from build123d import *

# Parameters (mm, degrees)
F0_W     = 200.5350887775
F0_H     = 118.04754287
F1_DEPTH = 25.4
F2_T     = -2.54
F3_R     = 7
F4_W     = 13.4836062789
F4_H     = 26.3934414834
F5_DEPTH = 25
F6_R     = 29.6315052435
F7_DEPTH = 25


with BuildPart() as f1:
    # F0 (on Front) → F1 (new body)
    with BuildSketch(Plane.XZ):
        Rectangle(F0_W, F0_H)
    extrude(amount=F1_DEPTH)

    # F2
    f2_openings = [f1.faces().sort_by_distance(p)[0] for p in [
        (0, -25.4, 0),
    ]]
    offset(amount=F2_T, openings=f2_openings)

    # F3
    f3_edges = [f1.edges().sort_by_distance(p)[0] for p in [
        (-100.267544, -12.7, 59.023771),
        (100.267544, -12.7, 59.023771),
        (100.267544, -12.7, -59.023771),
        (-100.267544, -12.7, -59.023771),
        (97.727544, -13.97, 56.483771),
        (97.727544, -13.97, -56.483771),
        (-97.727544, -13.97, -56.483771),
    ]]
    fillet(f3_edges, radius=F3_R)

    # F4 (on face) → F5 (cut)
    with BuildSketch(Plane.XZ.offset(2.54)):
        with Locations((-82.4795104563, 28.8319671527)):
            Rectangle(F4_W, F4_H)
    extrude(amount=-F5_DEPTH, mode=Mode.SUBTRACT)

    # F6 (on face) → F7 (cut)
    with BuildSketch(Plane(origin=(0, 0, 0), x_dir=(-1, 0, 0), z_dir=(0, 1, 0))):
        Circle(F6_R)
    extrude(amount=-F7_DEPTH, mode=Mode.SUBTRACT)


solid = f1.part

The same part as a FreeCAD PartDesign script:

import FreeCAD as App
import Part
import Sketcher
from FreeCAD import Vector


def edges_at(feature, points):
    """Names of the edges that pass closest to the given points."""
    edges = feature.Shape.Edges
    near = lambda p: min(range(len(edges)), key=lambda i: edges[i].distToShape(Part.Vertex(*p))[0])
    return sorted({f"Edge{near(p) + 1}" for p in points})


def faces_at(feature, points):
    """Names of the faces that lie closest to the given points."""
    faces = feature.Shape.Faces
    near = lambda p: min(range(len(faces)), key=lambda i: faces[i].distToShape(Part.Vertex(*p))[0])
    return sorted({f"Face{near(p) + 1}" for p in points})

doc = App.newDocument("Part")
body = doc.addObject("PartDesign::Body", "Body")

# Sketch on XZ plane
sketch1 = body.newObject("Sketcher::SketchObject", "Sketch")
sketch1.AttachmentSupport = (doc.getObject("XZ_Plane"), [""])
sketch1.MapMode = "FlatFace"
sketch1.addGeometry([
    Part.LineSegment(Vector(-100, 59, 0), Vector(-100, -59, 0)),
    Part.LineSegment(Vector(-100, -59, 0), Vector(100, -59, 0)),
    Part.LineSegment(Vector(100, -59, 0), Vector(100, 59, 0)),
    Part.LineSegment(Vector(100, 59, 0), Vector(-100, 59, 0)),
], False)
sketch1.addConstraint([
    Sketcher.Constraint("Coincident", 0, 2, 1, 1),
    Sketcher.Constraint("Coincident", 1, 2, 2, 1),
    Sketcher.Constraint("Coincident", 2, 2, 3, 1),
    Sketcher.Constraint("Coincident", 3, 2, 0, 1),
    Sketcher.Constraint("Vertical", 0),
    Sketcher.Constraint("Horizontal", 1),
    Sketcher.Constraint("Vertical", 2),
    Sketcher.Constraint("Horizontal", 3),
    Sketcher.Constraint("Symmetric", 0, 2, 2, 2, -1, 1),
    Sketcher.Constraint("DistanceX", 1, 1, 1, 2, 200.535089),
    Sketcher.Constraint("DistanceY", 0, 2, 0, 1, 118.047543),
])
pad1 = body.newObject("PartDesign::Pad", "Pad")
pad1.Profile = sketch1
pad1.Length = 25.4
doc.recompute()

thickness = body.newObject("PartDesign::Thickness", "Thickness")
thickness.Base = (pad1, faces_at(pad1, [(0, -25.4, 0)]))
thickness.Value = 2.54
thickness.Reversed = True
thickness.Join = "Arc"
doc.recompute()

fillet = body.newObject("PartDesign::Fillet", "Fillet")
fillet.Base = (thickness, edges_at(thickness, [
    (-100.268, -12.7, 59.024),
    (100.268, -12.7, 59.024),
    (100.268, -12.7, -59.024),
    (-100.268, -12.7, -59.024),
    (97.728, -13.97, 56.484),
    (97.728, -13.97, -56.484),
    (-97.728, -13.97, -56.484),
]))
fillet.Radius = 7

# Sketch on XZ plane
sketch2 = body.newObject("Sketcher::SketchObject", "Sketch001")
sketch2.AttachmentSupport = (doc.getObject("XZ_Plane"), [""])
sketch2.MapMode = "FlatFace"
sketch2.AttachmentOffset = App.Placement(Vector(0, 0, 2.54), App.Rotation())
sketch2.addGeometry([
    Part.LineSegment(Vector(-89, 42, 0), Vector(-89, 16, 0)),
    Part.LineSegment(Vector(-89, 16, 0), Vector(-76, 16, 0)),
    Part.LineSegment(Vector(-76, 16, 0), Vector(-76, 42, 0)),
    Part.LineSegment(Vector(-76, 42, 0), Vector(-89, 42, 0)),
], False)
sketch2.addConstraint([
    Sketcher.Constraint("Coincident", 0, 2, 1, 1),
    Sketcher.Constraint("Coincident", 1, 2, 2, 1),
    Sketcher.Constraint("Coincident", 2, 2, 3, 1),
    Sketcher.Constraint("Coincident", 3, 2, 0, 1),
    Sketcher.Constraint("Vertical", 0),
    Sketcher.Constraint("Horizontal", 1),
    Sketcher.Constraint("Vertical", 2),
    Sketcher.Constraint("Horizontal", 3),
    Sketcher.Constraint("DistanceY", 0, 2, 0, 1, 26.393441),
    Sketcher.Constraint("DistanceX", 1, 1, 1, 2, 13.483606),
    Sketcher.Constraint("DistanceX", 0, 2, -1, 1, 89.221314),
    Sketcher.Constraint("DistanceY", -1, 1, 0, 2, 15.635246),
])
pocket1 = body.newObject("PartDesign::Pocket", "Pocket")
pocket1.Profile = sketch2
pocket1.Length = 25

# Sketch on XZ plane
sketch3 = body.newObject("Sketcher::SketchObject", "Sketch002")
sketch3.AttachmentSupport = (doc.getObject("XZ_Plane"), [""])
sketch3.MapMode = "FlatFace"
sketch3.addGeometry(Part.Circle(Vector(0, 0, 0), Vector(0, 0, 1), 30), False)
sketch3.addConstraint([
    Sketcher.Constraint("Coincident", 0, 3, -1, 1),
    Sketcher.Constraint("Diameter", 0, 59.26301),
])
pocket2 = body.newObject("PartDesign::Pocket", "Pocket001")
pocket2.Profile = sketch3
pocket2.Length = 25
pocket2.Reversed = True

doc.recompute()
